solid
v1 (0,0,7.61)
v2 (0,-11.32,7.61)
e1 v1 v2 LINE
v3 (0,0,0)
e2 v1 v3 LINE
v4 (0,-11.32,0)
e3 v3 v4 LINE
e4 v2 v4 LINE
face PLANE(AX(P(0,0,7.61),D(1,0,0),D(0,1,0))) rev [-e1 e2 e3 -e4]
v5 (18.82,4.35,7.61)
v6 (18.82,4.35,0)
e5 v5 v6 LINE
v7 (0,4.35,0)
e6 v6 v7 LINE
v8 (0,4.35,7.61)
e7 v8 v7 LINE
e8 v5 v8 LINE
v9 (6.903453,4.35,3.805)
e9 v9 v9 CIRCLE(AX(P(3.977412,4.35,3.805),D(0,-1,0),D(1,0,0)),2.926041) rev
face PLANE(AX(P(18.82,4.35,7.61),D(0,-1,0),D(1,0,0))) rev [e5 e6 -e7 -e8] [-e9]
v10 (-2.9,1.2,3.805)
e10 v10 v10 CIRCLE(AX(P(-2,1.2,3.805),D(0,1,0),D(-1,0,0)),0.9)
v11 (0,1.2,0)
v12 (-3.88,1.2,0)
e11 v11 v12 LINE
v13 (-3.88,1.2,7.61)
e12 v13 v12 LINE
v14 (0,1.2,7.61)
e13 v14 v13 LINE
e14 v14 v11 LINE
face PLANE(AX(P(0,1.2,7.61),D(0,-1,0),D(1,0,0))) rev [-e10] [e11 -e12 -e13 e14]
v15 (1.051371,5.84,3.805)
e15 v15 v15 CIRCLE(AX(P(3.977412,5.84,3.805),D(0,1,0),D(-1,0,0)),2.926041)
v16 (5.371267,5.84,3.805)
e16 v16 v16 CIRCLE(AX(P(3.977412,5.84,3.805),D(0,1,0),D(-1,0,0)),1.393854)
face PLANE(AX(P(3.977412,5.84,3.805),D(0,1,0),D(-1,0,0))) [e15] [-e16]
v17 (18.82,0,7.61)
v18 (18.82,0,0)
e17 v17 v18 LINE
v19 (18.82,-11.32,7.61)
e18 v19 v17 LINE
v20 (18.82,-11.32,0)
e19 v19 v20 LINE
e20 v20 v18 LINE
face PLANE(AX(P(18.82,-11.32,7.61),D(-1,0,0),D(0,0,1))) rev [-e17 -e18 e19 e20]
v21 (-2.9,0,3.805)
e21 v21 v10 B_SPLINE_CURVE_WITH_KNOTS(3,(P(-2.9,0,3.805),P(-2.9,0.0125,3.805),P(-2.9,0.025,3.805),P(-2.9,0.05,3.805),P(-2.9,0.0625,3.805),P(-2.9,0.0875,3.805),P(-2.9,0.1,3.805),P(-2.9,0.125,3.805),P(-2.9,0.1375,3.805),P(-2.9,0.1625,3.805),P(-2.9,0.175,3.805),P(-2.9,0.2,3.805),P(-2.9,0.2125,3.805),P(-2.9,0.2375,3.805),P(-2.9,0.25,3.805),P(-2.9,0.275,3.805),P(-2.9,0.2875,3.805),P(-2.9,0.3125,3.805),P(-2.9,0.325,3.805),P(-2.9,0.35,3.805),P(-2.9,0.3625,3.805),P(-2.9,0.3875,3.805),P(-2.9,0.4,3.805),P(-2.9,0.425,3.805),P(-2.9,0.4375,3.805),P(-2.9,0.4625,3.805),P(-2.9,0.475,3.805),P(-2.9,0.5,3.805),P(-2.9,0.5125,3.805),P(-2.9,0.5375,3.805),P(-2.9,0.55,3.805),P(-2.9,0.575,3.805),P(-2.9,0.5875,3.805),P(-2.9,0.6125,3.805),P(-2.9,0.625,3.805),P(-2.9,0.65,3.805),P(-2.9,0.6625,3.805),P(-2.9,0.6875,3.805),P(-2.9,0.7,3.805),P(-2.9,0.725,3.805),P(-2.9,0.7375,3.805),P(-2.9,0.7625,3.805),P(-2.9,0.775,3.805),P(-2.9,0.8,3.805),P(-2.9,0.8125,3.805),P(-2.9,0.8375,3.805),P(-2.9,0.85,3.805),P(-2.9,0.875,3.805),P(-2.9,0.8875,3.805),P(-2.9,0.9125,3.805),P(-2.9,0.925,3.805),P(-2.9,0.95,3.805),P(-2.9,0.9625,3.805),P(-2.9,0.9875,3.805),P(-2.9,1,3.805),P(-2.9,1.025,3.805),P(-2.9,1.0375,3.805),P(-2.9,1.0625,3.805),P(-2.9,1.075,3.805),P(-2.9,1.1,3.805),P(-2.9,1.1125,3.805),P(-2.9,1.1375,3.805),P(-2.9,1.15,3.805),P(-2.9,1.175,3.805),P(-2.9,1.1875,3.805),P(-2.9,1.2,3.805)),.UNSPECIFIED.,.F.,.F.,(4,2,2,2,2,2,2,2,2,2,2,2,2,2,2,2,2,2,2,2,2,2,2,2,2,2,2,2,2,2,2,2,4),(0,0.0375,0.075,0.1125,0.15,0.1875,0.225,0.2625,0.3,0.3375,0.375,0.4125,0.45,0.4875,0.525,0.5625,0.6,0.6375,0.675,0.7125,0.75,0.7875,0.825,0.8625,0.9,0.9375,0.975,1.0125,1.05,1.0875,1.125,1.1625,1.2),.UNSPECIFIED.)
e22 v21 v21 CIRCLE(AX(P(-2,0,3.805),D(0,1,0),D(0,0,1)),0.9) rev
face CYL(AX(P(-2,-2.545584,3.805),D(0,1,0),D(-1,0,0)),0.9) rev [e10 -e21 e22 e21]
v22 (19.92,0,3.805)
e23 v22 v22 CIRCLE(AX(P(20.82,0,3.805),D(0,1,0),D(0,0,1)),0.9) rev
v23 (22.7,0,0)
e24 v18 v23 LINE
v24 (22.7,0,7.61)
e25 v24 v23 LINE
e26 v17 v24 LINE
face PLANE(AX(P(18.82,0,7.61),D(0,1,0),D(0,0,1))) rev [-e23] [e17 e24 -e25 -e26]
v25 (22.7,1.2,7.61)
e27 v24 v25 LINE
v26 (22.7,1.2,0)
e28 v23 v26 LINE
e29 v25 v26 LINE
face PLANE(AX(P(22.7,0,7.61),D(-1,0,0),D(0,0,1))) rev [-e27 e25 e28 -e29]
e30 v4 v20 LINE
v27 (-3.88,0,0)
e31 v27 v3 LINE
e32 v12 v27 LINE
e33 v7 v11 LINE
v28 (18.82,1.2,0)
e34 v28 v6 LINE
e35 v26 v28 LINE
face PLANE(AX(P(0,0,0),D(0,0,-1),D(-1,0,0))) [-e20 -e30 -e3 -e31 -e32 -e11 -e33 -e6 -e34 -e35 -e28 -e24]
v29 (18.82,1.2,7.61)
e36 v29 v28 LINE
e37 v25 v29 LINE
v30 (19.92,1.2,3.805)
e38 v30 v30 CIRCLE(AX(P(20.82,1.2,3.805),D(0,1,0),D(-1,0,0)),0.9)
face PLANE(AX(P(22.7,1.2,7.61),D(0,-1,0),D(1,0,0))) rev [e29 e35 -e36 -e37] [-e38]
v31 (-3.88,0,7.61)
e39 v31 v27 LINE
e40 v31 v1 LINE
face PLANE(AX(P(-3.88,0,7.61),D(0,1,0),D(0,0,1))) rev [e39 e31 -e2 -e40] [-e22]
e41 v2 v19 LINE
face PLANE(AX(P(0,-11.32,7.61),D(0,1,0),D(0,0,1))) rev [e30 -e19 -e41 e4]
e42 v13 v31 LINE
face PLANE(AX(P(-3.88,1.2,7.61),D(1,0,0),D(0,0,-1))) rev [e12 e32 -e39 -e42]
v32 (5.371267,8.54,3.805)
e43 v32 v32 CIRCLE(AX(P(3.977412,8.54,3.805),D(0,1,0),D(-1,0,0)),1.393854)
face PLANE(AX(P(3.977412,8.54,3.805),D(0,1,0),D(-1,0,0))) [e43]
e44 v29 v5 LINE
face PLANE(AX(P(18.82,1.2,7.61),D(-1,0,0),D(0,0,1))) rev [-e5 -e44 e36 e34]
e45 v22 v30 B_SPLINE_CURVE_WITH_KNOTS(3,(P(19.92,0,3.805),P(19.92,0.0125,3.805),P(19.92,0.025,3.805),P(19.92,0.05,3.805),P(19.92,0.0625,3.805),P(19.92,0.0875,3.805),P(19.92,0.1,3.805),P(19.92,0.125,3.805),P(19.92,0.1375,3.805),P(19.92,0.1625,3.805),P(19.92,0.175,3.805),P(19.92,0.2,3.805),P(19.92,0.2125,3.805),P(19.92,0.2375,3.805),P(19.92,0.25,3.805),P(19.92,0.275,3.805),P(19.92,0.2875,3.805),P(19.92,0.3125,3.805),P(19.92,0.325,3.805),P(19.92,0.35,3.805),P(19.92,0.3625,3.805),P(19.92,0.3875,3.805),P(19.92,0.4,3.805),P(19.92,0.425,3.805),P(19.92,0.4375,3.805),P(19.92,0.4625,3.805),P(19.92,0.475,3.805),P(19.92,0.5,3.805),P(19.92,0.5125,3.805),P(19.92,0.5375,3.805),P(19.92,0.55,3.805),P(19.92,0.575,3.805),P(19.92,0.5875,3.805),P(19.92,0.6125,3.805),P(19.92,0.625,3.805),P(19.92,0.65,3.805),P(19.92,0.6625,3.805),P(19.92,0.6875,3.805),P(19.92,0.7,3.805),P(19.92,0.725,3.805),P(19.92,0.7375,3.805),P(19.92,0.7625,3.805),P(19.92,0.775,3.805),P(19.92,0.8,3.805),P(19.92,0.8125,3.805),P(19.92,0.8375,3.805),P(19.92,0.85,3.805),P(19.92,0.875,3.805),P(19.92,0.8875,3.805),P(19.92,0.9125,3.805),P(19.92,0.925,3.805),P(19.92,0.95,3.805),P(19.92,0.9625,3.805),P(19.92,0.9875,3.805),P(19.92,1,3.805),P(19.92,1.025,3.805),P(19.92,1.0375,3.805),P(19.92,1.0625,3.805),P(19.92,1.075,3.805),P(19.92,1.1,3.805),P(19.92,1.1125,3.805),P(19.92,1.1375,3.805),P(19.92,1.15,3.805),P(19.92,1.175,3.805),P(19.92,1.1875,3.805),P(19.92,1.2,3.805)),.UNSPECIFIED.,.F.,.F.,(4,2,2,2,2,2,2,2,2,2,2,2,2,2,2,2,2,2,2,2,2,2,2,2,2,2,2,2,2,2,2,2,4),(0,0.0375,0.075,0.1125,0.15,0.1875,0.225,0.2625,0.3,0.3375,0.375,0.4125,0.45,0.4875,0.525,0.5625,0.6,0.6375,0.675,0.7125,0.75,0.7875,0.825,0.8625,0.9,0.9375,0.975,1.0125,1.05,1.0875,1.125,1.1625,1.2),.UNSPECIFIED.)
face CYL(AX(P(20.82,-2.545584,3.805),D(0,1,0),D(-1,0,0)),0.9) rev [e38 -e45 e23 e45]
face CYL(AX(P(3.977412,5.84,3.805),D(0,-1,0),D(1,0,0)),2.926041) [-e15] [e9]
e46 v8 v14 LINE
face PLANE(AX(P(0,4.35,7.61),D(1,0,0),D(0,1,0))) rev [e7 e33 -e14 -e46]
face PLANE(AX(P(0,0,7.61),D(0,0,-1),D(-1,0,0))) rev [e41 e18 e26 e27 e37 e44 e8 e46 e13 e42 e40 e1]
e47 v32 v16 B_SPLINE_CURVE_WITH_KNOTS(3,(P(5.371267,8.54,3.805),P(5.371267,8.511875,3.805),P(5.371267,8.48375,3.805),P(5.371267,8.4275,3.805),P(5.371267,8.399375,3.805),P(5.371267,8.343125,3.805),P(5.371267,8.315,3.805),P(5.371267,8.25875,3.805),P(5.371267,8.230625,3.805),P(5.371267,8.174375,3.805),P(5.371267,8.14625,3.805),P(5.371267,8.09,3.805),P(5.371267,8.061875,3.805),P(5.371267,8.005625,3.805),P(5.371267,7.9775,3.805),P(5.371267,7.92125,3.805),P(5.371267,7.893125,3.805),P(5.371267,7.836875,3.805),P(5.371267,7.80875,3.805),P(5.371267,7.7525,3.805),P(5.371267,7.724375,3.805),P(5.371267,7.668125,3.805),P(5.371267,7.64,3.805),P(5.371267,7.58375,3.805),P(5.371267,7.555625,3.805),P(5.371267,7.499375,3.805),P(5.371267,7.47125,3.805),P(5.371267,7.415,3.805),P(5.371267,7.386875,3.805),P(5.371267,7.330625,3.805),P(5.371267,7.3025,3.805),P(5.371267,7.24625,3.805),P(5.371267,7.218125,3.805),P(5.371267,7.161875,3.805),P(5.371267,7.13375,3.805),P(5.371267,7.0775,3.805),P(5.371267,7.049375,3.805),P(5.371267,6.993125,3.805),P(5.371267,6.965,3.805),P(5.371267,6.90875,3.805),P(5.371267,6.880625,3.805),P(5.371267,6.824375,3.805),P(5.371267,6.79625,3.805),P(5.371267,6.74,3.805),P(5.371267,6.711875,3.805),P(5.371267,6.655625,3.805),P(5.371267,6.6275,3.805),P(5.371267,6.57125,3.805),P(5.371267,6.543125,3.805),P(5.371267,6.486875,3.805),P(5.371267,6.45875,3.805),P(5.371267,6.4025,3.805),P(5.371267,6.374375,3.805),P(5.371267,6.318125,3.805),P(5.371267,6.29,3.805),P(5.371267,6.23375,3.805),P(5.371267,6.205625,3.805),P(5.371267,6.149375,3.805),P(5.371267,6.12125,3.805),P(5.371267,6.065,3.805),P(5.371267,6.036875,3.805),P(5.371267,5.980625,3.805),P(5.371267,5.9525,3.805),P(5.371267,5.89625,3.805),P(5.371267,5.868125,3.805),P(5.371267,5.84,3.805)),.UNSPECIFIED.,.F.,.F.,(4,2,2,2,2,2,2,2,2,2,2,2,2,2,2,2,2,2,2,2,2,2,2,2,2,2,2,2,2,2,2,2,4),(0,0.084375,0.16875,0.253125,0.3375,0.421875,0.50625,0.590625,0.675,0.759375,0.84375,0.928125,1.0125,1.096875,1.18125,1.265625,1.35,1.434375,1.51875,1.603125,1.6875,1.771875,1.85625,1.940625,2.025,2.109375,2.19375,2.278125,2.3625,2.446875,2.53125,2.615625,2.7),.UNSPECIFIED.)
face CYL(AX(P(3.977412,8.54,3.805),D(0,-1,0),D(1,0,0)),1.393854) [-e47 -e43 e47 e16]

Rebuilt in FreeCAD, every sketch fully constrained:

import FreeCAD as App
import Part
import Sketcher

V = App.Vector

doc = App.newDocument("Part")
params = doc.addObject("Spreadsheet::Sheet", "Params")
for row, (alias, value) in enumerate([
    ("sketch1_height", "1.2 mm"),
    ("sketch1_width", "18.82 mm"),
    ("sketch1_width2", "3.88 mm"),
    ("sketch1_height2", "11.32 mm"),
    ("sketch1_height3", "3.15 mm"),
    ("pad1_length", "7.61 mm"),
    ("sketch2_diameter", "1.8 mm"),
    ("pocket1_length", "1.2 mm"),
    ("pad2_length", "1.49 mm"),
    ("pad3_length", "2.7 mm"),
], start=1):
    params.set(f"A{row}", alias)
    params.set(f"B{row}", "=" + value)
    params.setAlias(f"B{row}", alias)

body = doc.addObject("PartDesign::Body", "Body")

# Sketch on XY plane
sketch1 = doc.addObject("Sketcher::SketchObject", "Sketch")
body.addObject(sketch1)
sketch1.AttachmentSupport = (doc.XY_Plane, [""])
sketch1.MapMode = "FlatFace"
sketch1.addGeometry([
    Part.LineSegment(V(0, 0, 0), V(0, -11.3, 0)),  # 0
    Part.LineSegment(V(0, -11.3, 0), V(18.8, -11.3, 0)),  # 1
    Part.LineSegment(V(18.8, -11.3, 0), V(18.8, 0, 0)),  # 2
    Part.LineSegment(V(18.8, 0, 0), V(22.7, 0, 0)),  # 3
    Part.LineSegment(V(22.7, 0, 0), V(22.7, 1.2, 0)),  # 4
    Part.LineSegment(V(22.7, 1.2, 0), V(18.8, 1.2, 0)),  # 5
    Part.LineSegment(V(18.8, 1.2, 0), V(18.8, 4.3, 0)),  # 6
    Part.LineSegment(V(18.8, 4.3, 0), V(0, 4.3, 0)),  # 7
    Part.LineSegment(V(0, 4.3, 0), V(0, 1.2, 0)),  # 8
    Part.LineSegment(V(0, 1.2, 0), V(-3.9, 1.2, 0)),  # 9
    Part.LineSegment(V(-3.9, 1.2, 0), V(-3.9, 0, 0)),  # 10
    Part.LineSegment(V(-3.9, 0, 0), V(0, 0, 0)),  # 11
], False)
sketch1.addConstraint([
    Sketcher.Constraint("Coincident", 0, 2, 1, 1),
    Sketcher.Constraint("Coincident", 1, 2, 2, 1),
    Sketcher.Constraint("Coincident", 2, 2, 3, 1),
    Sketcher.Constraint("Coincident", 3, 2, 4, 1),
    Sketcher.Constraint("Coincident", 4, 2, 5, 1),
    Sketcher.Constraint("Coincident", 5, 2, 6, 1),
    Sketcher.Constraint("Coincident", 6, 2, 7, 1),
    Sketcher.Constraint("Coincident", 7, 2, 8, 1),
    Sketcher.Constraint("Coincident", 8, 2, 9, 1),
    Sketcher.Constraint("Coincident", 9, 2, 10, 1),
    Sketcher.Constraint("Coincident", 10, 2, 11, 1),
    Sketcher.Constraint("Coincident", 11, 2, 0, 1),
    Sketcher.Constraint("Vertical", 0),
    Sketcher.Constraint("Horizontal", 1),
    Sketcher.Constraint("Vertical", 2),
    Sketcher.Constraint("Horizontal", 3),
    Sketcher.Constraint("Vertical", 4),
    Sketcher.Constraint("Horizontal", 5),
    Sketcher.Constraint("Vertical", 6),
    Sketcher.Constraint("Horizontal", 7),
    Sketcher.Constraint("Vertical", 8),
    Sketcher.Constraint("Horizontal", 9),
    Sketcher.Constraint("Vertical", 10),
    Sketcher.Constraint("Horizontal", 11),
    Sketcher.Constraint("Coincident", 11, 2, -1, 1),
    Sketcher.Constraint("PointOnObject", 2, 2, -1),
    Sketcher.Constraint("PointOnObject", 7, 2, -2),
    Sketcher.Constraint("Horizontal", 5, 2, 8, 2),
    Sketcher.Constraint("Vertical", 2, 2, 5, 2),
    Sketcher.Constraint("Equal", 5, 9),
    Sketcher.Constraint("DistanceY", 4, 1, 4, 2, 1.2),
    Sketcher.Constraint("DistanceX", 1, 1, 1, 2, 18.82),
    Sketcher.Constraint("DistanceX", 3, 1, 3, 2, 3.88),
    Sketcher.Constraint("DistanceY", 0, 2, 0, 1, 11.32),
    Sketcher.Constraint("DistanceY", 6, 1, 6, 2, 3.15),
])
sketch1.setExpression("Constraints[30]", "Params.sketch1_height")
sketch1.setExpression("Constraints[31]", "Params.sketch1_width")
sketch1.setExpression("Constraints[32]", "Params.sketch1_width2")
sketch1.setExpression("Constraints[33]", "Params.sketch1_height2")
sketch1.setExpression("Constraints[34]", "Params.sketch1_height3")
pad1 = doc.addObject("PartDesign::Pad", "Pad")
body.addObject(pad1)
pad1.Profile = sketch1
pad1.setExpression("Length", "Params.pad1_length")

# Sketch on XZ plane
sketch2 = doc.addObject("Sketcher::SketchObject", "Sketch001")
body.addObject(sketch2)
sketch2.AttachmentSupport = (doc.XZ_Plane, [""])
sketch2.MapMode = "FlatFace"
sketch2.AttachmentOffset = App.Placement(V(0, 0, -1.2), App.Rotation())
sketch2.addGeometry([
    Part.Circle(V(20.8, 3.8, 0), V(0, 0, 1), 0.9),
    Part.Circle(V(-2, 3.8, 0), V(0, 0, 1), 0.9),
], False)
sketch2.addConstraint([
    Sketcher.Constraint("Equal", 0, 1),
    Sketcher.Constraint("Horizontal", 0, 3, 1, 3),
    Sketcher.Constraint("Diameter", 0, 1.8),
    Sketcher.Constraint("DistanceX", 1, 3, -1, 1, 2.0),
    Sketcher.Constraint("DistanceX", -1, 1, 0, 3, 20.82),
    Sketcher.Constraint("DistanceY", -1, 1, 0, 3, 3.805),
])
sketch2.setExpression("Constraints[2]", "Params.sketch2_diameter")
pocket1 = doc.addObject("PartDesign::Pocket", "Pocket")
body.addObject(pocket1)
pocket1.Profile = sketch2
pocket1.setExpression("Length", "Params.pocket1_length")
pocket1.Reversed = True

# Sketch on XZ plane
sketch3 = doc.addObject("Sketcher::SketchObject", "Sketch002")
body.addObject(sketch3)
sketch3.AttachmentSupport = (doc.XZ_Plane, [""])
sketch3.MapMode = "FlatFace"
sketch3.AttachmentOffset = App.Placement(V(0, 0, -4.35), App.Rotation())
sketch3.addGeometry(Part.Circle(V(4, 3.8, 0), V(0, 0, 1), 2.9), False)
sketch3.addConstraint([
    Sketcher.Constraint("Diameter", 0, 5.852082),
    Sketcher.Constraint("DistanceY", -1, 1, 0, 3, 3.805),
    Sketcher.Constraint("DistanceX", -1, 1, 0, 3, 3.977412),
])
pad2 = doc.addObject("PartDesign::Pad", "Pad001")
body.addObject(pad2)
pad2.Profile = sketch3
pad2.setExpression("Length", "Params.pad2_length")
pad2.Reversed = True

# Sketch on XZ plane
sketch4 = doc.addObject("Sketcher::SketchObject", "Sketch003")
body.addObject(sketch4)
sketch4.AttachmentSupport = (doc.XZ_Plane, [""])
sketch4.MapMode = "FlatFace"
sketch4.AttachmentOffset = App.Placement(V(0, 0, -5.84), App.Rotation())
sketch4.addGeometry(Part.Circle(V(4, 3.8, 0), V(0, 0, 1), 1.4), False)
sketch4.addConstraint([
    Sketcher.Constraint("Diameter", 0, 2.787709),
    Sketcher.Constraint("DistanceY", -1, 1, 0, 3, 3.805),
    Sketcher.Constraint("DistanceX", -1, 1, 0, 3, 3.977412),
])
pad3 = doc.addObject("PartDesign::Pad", "Pad002")
body.addObject(pad3)
pad3.Profile = sketch4
pad3.setExpression("Length", "Params.pad3_length")
pad3.Reversed = True

doc.recompute()
